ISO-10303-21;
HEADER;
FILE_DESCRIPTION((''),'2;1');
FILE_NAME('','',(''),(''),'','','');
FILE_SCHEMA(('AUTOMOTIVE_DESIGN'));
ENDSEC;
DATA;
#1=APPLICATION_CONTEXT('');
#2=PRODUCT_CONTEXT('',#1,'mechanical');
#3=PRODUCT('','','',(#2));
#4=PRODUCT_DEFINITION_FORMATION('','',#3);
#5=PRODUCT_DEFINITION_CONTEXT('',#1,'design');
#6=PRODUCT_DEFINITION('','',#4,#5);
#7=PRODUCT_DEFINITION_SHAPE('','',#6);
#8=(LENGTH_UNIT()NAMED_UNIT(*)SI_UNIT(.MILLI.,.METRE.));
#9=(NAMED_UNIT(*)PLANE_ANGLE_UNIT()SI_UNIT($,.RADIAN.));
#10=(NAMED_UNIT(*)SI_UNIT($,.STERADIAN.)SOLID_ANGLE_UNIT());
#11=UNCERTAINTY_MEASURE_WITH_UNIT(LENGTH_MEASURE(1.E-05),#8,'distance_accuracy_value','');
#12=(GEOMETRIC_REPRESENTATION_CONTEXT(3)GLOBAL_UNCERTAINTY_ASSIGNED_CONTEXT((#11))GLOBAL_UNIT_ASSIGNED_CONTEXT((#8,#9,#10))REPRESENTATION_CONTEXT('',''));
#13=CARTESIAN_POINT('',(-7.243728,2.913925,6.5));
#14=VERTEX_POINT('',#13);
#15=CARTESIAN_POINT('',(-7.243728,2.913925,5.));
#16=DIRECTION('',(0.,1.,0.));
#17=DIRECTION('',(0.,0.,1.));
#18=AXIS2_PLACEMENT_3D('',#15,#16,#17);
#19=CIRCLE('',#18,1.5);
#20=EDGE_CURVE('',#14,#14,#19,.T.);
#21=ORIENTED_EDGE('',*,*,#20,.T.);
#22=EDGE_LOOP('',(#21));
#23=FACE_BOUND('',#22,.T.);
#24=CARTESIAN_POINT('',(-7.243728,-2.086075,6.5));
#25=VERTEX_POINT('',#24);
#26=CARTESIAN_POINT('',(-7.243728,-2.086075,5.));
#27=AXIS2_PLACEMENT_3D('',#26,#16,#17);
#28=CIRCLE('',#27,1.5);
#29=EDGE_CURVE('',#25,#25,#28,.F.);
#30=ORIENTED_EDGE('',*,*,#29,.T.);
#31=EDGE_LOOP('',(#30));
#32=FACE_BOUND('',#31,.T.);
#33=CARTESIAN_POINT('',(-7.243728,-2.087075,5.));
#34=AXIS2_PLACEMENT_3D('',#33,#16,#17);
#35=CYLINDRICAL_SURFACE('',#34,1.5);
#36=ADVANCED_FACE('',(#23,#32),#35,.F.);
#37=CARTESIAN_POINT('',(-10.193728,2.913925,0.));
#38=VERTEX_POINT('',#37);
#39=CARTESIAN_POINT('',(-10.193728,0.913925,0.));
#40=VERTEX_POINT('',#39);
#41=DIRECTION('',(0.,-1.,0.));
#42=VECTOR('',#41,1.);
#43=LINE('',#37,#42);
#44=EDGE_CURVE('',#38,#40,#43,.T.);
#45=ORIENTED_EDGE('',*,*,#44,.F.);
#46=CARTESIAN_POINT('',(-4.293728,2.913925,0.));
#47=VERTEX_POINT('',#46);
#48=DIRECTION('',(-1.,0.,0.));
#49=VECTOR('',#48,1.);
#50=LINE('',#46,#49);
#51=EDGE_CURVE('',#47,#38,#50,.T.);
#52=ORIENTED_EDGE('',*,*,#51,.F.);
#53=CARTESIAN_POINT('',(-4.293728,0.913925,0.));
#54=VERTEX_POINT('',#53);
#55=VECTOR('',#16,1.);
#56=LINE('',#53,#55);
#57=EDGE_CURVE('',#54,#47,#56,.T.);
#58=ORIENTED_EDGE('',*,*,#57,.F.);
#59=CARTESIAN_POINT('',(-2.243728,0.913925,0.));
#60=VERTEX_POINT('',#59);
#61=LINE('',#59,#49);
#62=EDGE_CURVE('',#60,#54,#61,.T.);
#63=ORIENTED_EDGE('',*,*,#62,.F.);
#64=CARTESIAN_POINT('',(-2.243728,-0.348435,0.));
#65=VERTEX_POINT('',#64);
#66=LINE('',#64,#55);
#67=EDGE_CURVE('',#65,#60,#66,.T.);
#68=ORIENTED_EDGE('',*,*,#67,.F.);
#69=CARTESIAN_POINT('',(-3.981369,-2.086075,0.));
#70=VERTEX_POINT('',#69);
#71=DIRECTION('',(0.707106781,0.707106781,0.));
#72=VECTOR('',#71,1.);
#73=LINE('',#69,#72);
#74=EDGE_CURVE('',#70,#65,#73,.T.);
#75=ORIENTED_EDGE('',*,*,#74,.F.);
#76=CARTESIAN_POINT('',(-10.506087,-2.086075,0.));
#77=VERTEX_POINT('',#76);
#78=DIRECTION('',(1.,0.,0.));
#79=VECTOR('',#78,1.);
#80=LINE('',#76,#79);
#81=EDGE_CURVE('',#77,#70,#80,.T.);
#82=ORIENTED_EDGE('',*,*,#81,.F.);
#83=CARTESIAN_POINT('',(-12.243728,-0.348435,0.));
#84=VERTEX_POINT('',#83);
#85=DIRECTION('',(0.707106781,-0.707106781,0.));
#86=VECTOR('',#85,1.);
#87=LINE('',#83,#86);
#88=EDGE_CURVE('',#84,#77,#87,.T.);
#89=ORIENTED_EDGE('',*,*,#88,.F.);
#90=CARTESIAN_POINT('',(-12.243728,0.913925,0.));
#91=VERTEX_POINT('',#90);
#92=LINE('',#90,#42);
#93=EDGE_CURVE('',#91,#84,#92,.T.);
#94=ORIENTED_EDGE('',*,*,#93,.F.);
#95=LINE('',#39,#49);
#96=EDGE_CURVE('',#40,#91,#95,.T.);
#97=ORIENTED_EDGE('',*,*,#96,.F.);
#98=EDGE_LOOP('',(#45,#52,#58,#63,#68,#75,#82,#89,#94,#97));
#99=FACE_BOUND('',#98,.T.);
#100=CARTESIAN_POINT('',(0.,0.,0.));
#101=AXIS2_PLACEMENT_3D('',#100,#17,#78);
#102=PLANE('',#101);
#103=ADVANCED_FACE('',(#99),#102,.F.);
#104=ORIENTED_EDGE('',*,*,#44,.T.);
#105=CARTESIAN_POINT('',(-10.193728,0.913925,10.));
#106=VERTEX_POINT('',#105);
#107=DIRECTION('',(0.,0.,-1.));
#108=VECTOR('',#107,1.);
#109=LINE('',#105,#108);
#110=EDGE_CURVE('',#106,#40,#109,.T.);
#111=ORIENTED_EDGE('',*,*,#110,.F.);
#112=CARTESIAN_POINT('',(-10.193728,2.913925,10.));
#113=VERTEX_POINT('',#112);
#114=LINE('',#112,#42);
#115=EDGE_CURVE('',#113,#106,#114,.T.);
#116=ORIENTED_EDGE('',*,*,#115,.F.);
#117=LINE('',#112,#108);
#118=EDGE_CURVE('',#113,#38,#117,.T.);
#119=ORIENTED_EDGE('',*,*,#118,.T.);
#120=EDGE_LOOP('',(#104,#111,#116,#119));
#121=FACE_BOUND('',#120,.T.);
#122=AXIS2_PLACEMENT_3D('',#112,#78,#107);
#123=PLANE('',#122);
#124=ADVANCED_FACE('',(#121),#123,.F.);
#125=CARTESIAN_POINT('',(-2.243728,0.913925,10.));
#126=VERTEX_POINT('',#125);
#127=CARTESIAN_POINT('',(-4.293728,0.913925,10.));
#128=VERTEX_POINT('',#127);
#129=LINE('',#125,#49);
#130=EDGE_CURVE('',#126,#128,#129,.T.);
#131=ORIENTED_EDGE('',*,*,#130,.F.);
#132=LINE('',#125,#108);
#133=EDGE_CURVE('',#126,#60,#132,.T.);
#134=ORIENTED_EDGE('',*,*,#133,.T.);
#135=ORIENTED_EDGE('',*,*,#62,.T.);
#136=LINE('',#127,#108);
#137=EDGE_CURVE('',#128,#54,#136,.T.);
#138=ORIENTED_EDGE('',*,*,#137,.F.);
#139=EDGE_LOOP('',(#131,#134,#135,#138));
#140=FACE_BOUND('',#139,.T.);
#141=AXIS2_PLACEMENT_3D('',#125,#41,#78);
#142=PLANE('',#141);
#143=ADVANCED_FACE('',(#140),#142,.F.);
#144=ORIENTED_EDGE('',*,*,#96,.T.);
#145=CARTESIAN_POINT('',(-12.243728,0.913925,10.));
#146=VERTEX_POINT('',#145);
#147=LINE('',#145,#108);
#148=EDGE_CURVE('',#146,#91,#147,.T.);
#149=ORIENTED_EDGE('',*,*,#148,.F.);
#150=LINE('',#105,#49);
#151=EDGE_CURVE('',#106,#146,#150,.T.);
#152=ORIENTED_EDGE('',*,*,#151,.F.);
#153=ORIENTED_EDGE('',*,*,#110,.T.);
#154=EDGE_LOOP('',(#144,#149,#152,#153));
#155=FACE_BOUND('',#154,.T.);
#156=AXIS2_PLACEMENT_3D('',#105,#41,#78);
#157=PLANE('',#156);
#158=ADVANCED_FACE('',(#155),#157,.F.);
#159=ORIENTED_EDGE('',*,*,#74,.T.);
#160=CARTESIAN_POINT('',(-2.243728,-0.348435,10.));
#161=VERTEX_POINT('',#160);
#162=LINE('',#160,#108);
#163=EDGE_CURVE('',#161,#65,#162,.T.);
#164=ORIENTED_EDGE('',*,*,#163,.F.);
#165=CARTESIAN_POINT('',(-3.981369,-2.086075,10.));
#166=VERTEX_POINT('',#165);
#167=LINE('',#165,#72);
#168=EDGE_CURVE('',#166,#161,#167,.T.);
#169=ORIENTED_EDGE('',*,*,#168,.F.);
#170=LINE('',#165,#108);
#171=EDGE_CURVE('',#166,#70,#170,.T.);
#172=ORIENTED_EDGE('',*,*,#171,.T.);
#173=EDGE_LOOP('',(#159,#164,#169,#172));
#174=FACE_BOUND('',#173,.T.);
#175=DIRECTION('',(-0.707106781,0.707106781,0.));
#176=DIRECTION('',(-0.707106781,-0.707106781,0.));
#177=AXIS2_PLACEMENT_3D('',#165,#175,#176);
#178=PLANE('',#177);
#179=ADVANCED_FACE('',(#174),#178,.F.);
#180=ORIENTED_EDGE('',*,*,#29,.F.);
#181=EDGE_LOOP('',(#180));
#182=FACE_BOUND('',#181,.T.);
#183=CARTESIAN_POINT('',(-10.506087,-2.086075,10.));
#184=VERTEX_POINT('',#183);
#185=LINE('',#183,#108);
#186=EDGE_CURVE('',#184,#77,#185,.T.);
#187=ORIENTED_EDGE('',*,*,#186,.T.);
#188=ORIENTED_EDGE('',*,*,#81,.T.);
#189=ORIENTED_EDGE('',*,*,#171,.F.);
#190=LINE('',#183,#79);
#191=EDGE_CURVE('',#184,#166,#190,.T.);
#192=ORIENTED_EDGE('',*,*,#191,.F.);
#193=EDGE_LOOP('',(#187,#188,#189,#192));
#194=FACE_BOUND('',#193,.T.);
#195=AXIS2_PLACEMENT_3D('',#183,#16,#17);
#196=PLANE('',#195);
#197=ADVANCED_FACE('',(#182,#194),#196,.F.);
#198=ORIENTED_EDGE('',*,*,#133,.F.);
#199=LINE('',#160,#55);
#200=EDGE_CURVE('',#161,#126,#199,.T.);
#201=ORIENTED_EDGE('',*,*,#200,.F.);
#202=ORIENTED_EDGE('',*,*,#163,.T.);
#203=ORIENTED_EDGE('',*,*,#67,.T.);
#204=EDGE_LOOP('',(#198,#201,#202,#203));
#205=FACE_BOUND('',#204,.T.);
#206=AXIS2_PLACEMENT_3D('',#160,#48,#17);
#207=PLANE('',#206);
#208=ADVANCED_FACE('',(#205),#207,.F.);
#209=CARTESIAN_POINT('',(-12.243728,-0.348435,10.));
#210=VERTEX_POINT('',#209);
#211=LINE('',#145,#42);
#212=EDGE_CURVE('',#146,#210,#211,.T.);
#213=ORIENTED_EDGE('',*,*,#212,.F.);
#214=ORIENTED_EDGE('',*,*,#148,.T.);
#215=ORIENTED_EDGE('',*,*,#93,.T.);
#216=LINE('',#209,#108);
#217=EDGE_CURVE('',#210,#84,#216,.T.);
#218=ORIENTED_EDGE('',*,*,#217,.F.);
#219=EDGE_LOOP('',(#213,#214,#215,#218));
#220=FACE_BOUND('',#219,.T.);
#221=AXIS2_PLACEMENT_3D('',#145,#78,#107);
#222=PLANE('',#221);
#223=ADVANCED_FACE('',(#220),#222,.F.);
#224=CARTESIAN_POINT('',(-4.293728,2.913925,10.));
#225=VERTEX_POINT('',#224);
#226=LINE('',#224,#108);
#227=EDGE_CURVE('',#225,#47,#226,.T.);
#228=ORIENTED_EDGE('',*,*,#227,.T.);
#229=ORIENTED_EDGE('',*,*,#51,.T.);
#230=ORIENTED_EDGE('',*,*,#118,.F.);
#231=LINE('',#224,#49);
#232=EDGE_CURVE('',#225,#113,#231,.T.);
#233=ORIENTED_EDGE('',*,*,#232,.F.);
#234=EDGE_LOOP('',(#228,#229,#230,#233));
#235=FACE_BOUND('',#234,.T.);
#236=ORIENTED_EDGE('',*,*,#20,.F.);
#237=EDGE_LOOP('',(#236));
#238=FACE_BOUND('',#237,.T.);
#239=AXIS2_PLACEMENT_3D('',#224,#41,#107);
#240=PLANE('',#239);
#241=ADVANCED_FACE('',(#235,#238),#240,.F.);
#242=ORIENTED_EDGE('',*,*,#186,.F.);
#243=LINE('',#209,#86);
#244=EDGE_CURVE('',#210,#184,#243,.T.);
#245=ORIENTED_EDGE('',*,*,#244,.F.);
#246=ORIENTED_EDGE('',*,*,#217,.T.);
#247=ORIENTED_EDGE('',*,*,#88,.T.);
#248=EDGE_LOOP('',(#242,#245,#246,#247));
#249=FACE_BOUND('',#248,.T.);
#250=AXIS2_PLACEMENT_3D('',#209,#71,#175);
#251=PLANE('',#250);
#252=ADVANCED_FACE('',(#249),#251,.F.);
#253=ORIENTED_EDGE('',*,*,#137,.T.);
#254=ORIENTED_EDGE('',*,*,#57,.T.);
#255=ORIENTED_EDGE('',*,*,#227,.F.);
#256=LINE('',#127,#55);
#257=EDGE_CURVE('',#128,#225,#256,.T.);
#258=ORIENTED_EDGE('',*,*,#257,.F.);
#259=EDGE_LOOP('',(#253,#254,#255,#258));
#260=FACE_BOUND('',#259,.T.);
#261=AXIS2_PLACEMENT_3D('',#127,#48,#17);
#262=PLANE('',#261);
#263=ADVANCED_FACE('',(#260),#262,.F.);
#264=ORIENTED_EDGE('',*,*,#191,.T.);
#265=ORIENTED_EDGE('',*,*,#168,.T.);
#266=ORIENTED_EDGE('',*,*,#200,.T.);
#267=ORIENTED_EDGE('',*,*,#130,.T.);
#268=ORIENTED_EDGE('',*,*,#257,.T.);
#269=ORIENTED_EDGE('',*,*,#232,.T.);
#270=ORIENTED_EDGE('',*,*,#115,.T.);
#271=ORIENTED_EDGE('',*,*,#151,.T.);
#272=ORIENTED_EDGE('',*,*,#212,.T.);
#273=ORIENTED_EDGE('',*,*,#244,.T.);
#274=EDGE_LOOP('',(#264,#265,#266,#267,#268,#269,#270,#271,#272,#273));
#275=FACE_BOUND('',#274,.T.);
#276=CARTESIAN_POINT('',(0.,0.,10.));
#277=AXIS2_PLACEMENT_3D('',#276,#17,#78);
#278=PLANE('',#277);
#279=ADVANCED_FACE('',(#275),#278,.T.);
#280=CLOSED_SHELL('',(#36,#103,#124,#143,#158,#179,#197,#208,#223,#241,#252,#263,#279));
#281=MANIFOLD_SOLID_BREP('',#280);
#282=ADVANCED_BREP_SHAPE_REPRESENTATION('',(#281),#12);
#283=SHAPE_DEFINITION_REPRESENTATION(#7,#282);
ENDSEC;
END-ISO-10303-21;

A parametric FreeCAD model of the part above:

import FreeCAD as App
import Part
import Sketcher
from FreeCAD import Vector
Q = App.Units.Quantity


def add_polygon(sketch, points):
    """Adds a closed chain of lines whose ends are joined by coincident constraints."""
    first, n = sketch.GeometryCount, len(points)
    for a, b in zip(points, points[1:] + points[:1]):
        sketch.addGeometry(Part.LineSegment(App.Vector(*a, 0), App.Vector(*b, 0)), False)
    for i in range(n):
        sketch.addConstraint(Sketcher.Constraint("Coincident", first + i, 2, first + (i + 1) % n, 1))

doc = App.newDocument("Part")
params = doc.addObject("Spreadsheet::Sheet", "Params")
for row, (alias, value) in enumerate([
    ("sketch1_height", "2 mm"),
    ("sketch1_width", "5.9 mm"),
    ("sketch1_width2", "2.05 mm"),
    ("pad1_length", "10 mm"),
    ("sketch2_diameter", "3 mm"),
], start=1):
    params.set(f"A{row}", alias)
    params.set(f"B{row}", "=" + value)
    params.setAlias(f"B{row}", alias)

body = doc.addObject("PartDesign::Body", "Body")

sketch1 = body.newObject("Sketcher::SketchObject", "Sketch")
sketch1.AttachmentSupport = (doc.getObject("XY_Plane"), [""])
sketch1.MapMode = "FlatFace"
add_polygon(sketch1, [(-10.5, -2.1), (-4, -2.1), (-2.2, -0.3), (-2.2, 0.9), (-4.3, 0.9), (-4.3, 2.9), (-10.2, 2.9), (-10.2, 0.9), (-12.2, 0.9), (-12.2, -0.3)])
sketch1.addConstraint(Sketcher.Constraint("Horizontal", 0))
sketch1.addConstraint(Sketcher.Constraint("Vertical", 2))
sketch1.addConstraint(Sketcher.Constraint("Horizontal", 3))
sketch1.addConstraint(Sketcher.Constraint("Vertical", 4))
sketch1.addConstraint(Sketcher.Constraint("Horizontal", 5))
sketch1.addConstraint(Sketcher.Constraint("Vertical", 6))
sketch1.addConstraint(Sketcher.Constraint("Horizontal", 7))
sketch1.addConstraint(Sketcher.Constraint("Vertical", 8))
sketch1.addConstraint(Sketcher.Constraint("Perpendicular", 1, 9))
sketch1.addConstraint(Sketcher.Constraint("Horizontal", 3, 2, 6, 2))
sketch1.addConstraint(Sketcher.Constraint("Horizontal", 1, 2, 8, 2))
sketch1.addConstraint(Sketcher.Constraint("Equal", 3, 7))
sketch1.addConstraint(Sketcher.Constraint("Equal", 1, 9))
sketch1.addConstraint(Sketcher.Constraint("DistanceY", 4, 1, 4, 2, Q("2 mm")))
sketch1.addConstraint(Sketcher.Constraint("DistanceX", 5, 2, 5, 1, Q("5.9 mm")))
sketch1.addConstraint(Sketcher.Constraint("DistanceY", 0, 2, 2, 2, Q("3 mm")))
sketch1.addConstraint(Sketcher.Constraint("DistanceX", 3, 2, 3, 1, Q("2.05 mm")))
sketch1.addConstraint(Sketcher.Constraint("DistanceX", 0, 1, 0, 2, Q("6.524718 mm")))
sketch1.addConstraint(Sketcher.Constraint("DistanceX", 0, 2, -1, 1, Q("3.981369 mm")))
sketch1.addConstraint(Sketcher.Constraint("DistanceY", 0, 2, -1, 1, Q("2.086075 mm")))
sketch1.setExpression("Constraints[23]", "Params.sketch1_height")
sketch1.setExpression("Constraints[24]", "Params.sketch1_width")
sketch1.setExpression("Constraints[26]", "Params.sketch1_width2")
pad1 = body.newObject("PartDesign::Pad", "Pad")
pad1.Profile = sketch1
pad1.setExpression("Length", "Params.pad1_length")

sketch2 = body.newObject("Sketcher::SketchObject", "Sketch001")
sketch2.AttachmentSupport = (doc.getObject("XZ_Plane"), [""])
sketch2.MapMode = "FlatFace"
sketch2.AttachmentOffset = App.Placement(Vector(0, 0, -2.913925), App.Rotation())
sketch2.addGeometry(Part.Circle(Vector(-7.2, 5, 0), Vector(0, 0, 1), 1.5), False)
sketch2.addConstraint(Sketcher.Constraint("Diameter", 0, Q("3 mm")))
sketch2.addConstraint(Sketcher.Constraint("DistanceY", -1, 1, 0, 3, Q("5 mm")))
sketch2.addConstraint(Sketcher.Constraint("DistanceX", 0, 3, -1, 1, Q("7.243728 mm")))
sketch2.setExpression("Constraints[0]", "Params.sketch2_diameter")
pocket1 = body.newObject("PartDesign::Pocket", "Pocket")
pocket1.Profile = sketch2
pocket1.Type = "UpToFirst"
pocket1.Reversed = True

doc.recompute()
